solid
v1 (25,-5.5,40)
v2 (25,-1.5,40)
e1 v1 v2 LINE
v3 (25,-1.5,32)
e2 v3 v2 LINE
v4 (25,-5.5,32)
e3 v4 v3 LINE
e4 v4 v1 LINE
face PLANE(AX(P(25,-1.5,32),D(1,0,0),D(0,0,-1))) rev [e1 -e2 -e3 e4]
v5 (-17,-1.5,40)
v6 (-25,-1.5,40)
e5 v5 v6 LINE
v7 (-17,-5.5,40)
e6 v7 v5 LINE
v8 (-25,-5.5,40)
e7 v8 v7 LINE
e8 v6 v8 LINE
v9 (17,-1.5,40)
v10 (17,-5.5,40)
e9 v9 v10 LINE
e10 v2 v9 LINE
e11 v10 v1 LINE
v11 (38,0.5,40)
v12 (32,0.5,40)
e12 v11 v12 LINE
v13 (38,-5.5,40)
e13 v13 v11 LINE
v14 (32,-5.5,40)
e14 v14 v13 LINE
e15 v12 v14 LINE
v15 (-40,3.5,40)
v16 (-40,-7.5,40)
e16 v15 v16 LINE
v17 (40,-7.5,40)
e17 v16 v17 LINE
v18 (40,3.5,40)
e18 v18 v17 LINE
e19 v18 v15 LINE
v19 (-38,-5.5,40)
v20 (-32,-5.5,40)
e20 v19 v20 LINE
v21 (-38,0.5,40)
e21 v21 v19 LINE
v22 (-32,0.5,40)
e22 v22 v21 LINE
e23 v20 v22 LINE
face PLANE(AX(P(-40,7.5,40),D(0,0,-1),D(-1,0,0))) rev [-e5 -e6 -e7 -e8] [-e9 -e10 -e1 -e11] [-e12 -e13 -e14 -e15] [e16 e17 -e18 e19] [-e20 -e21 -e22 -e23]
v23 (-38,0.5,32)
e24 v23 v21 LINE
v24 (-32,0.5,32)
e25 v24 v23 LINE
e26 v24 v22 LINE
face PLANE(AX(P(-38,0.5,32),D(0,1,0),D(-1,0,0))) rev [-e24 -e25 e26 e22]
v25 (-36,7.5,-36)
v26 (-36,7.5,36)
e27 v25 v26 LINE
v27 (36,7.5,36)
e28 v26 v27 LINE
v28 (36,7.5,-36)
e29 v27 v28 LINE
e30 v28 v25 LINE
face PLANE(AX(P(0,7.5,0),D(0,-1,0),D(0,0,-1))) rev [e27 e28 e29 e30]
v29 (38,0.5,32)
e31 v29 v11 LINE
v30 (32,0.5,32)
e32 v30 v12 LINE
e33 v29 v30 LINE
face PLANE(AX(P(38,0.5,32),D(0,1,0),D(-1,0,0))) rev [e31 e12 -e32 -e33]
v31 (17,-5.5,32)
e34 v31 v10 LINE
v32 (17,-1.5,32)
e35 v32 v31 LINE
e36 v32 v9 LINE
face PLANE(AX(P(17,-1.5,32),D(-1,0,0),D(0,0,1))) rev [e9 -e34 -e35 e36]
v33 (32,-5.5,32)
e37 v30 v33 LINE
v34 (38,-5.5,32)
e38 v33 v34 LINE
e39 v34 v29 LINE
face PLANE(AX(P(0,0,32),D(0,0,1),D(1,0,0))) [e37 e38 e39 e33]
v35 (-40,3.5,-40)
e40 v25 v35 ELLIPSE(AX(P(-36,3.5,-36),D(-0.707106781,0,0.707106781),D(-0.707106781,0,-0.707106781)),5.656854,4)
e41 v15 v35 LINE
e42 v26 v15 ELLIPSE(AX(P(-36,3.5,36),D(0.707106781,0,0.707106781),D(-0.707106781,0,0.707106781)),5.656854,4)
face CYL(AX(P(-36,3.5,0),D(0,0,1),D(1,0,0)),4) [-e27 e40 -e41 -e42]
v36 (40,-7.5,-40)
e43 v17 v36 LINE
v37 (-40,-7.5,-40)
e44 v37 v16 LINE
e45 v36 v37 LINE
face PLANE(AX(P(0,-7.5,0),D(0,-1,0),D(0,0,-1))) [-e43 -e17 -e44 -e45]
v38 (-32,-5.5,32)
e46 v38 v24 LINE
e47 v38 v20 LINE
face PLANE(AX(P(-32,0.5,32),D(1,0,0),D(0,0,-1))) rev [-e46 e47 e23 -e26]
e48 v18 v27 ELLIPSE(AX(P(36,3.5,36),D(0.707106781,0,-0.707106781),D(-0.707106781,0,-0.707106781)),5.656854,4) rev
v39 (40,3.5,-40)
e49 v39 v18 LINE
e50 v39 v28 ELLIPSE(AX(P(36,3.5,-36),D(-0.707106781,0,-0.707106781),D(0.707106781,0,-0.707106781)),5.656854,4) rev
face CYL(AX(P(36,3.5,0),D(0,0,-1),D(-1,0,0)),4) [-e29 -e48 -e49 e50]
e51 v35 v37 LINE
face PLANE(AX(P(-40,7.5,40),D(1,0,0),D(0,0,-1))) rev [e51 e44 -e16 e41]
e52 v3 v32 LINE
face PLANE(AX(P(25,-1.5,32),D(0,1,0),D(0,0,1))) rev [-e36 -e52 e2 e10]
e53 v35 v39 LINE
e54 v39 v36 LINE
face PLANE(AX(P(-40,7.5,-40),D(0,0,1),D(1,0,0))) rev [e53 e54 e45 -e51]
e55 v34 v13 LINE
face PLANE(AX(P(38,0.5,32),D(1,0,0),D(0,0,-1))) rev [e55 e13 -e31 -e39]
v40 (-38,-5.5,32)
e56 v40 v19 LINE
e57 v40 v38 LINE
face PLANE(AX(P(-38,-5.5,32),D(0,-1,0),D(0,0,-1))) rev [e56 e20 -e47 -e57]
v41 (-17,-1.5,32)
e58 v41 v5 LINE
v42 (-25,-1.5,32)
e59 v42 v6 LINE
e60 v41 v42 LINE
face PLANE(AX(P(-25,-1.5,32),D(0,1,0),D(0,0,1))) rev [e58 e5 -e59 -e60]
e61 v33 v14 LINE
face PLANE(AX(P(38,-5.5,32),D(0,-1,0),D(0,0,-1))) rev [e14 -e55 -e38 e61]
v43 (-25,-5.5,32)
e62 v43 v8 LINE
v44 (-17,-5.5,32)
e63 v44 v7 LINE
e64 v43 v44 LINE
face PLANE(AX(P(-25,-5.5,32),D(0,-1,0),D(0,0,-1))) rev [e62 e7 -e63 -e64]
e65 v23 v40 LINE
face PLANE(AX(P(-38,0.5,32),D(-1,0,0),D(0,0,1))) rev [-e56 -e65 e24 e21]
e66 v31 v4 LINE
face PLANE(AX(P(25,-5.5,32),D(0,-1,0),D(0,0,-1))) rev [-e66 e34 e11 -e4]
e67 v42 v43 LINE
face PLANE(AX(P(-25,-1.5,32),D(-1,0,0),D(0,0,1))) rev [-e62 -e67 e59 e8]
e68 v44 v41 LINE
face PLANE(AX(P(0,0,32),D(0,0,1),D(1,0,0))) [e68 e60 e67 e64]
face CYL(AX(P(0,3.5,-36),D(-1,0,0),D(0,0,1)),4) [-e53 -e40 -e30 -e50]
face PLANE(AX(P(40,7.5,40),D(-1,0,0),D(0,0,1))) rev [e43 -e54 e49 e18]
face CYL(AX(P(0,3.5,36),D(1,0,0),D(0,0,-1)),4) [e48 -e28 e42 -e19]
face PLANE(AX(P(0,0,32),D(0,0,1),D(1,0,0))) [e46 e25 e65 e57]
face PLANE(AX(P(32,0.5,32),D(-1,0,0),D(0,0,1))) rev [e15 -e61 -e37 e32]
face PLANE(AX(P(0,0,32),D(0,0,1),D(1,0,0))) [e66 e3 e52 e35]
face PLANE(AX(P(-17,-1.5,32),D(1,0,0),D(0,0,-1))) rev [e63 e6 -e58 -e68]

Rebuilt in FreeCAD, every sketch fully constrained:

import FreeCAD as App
import Part
import Sketcher


def edges_at(feature, points):
    """Names of the edges that pass closest to the given points."""
    edges = feature.Shape.Edges
    near = lambda p: min(range(len(edges)), key=lambda i: edges[i].distToShape(Part.Vertex(*p))[0])
    return sorted({f"Edge{near(p) + 1}" for p in points})


def add_polygon(sketch, points):
    """Adds a closed chain of lines whose ends are joined by coincident constraints."""
    first, n = sketch.GeometryCount, len(points)
    for a, b in zip(points, points[1:] + points[:1]):
        sketch.addGeometry(Part.LineSegment(App.Vector(*a, 0), App.Vector(*b, 0)), False)
    for i in range(n):
        sketch.addConstraint(Sketcher.Constraint("Coincident", first + i, 2, first + (i + 1) % n, 1))

doc = App.newDocument("Part")
body = doc.addObject("PartDesign::Body", "Body")

sketch1 = body.newObject("Sketcher::SketchObject", "Sketch")
sketch1.AttachmentSupport = (doc.getObject("XZ_Plane"), [""])
sketch1.MapMode = "FlatFace"
add_polygon(sketch1, [(-40, -40), (-40, 40), (40, 40), (40, -40)])
sketch1.addConstraint(Sketcher.Constraint("Vertical", 0))
sketch1.addConstraint(Sketcher.Constraint("Horizontal", 1))
sketch1.addConstraint(Sketcher.Constraint("Vertical", 2))
sketch1.addConstraint(Sketcher.Constraint("Horizontal", 3))
sketch1.addConstraint(Sketcher.Constraint("Symmetric", 0, 2, 2, 2, -1, 1))
sketch1.addConstraint(Sketcher.Constraint("Equal", 3, 0))
sketch1.addConstraint(Sketcher.Constraint("DistanceX", 1, 1, 1, 2, 80.0))
pad1 = body.newObject("PartDesign::Pad", "Pad")
pad1.Profile = sketch1
pad1.Length = 15
pad1.Midplane = True
doc.recompute()

fillet = body.newObject("PartDesign::Fillet", "Fillet")
fillet.Base = (pad1, edges_at(pad1, [
    (-40, 7.5, 0),
    (0, 7.5, 40),
    (40, 7.5, 0),
    (0, 7.5, -40),
]))
fillet.Radius = 4

sketch2 = body.newObject("Sketcher::SketchObject", "Sketch001")
sketch2.AttachmentSupport = (doc.getObject("XY_Plane"), [""])
sketch2.MapMode = "FlatFace"
sketch2.AttachmentOffset = App.Placement(App.Vector(0, 0, 40), App.Rotation())
add_polygon(sketch2, [(-38, 0.5), (-38, -5.5), (-32, -5.5), (-32, 0.5)])
add_polygon(sketch2, [(-25, -1.5), (-25, -5.5), (-17, -5.5), (-17, -1.5)])
add_polygon(sketch2, [(17, -1.5), (17, -5.5), (25, -5.5), (25, -1.5)])
add_polygon(sketch2, [(32, 0.5), (32, -5.5), (38, -5.5), (38, 0.5)])
sketch2.addConstraint(Sketcher.Constraint("Vertical", 0))
sketch2.addConstraint(Sketcher.Constraint("Horizontal", 1))
sketch2.addConstraint(Sketcher.Constraint("Vertical", 2))
sketch2.addConstraint(Sketcher.Constraint("Horizontal", 3))
sketch2.addConstraint(Sketcher.Constraint("Vertical", 4))
sketch2.addConstraint(Sketcher.Constraint("Horizontal", 5))
sketch2.addConstraint(Sketcher.Constraint("Vertical", 6))
sketch2.addConstraint(Sketcher.Constraint("Horizontal", 7))
sketch2.addConstraint(Sketcher.Constraint("Vertical", 8))
sketch2.addConstraint(Sketcher.Constraint("Horizontal", 9))
sketch2.addConstraint(Sketcher.Constraint("Vertical", 10))
sketch2.addConstraint(Sketcher.Constraint("Horizontal", 11))
sketch2.addConstraint(Sketcher.Constraint("Vertical", 12))
sketch2.addConstraint(Sketcher.Constraint("Horizontal", 13))
sketch2.addConstraint(Sketcher.Constraint("Vertical", 14))
sketch2.addConstraint(Sketcher.Constraint("Horizontal", 15))
sketch2.addConstraint(Sketcher.Constraint("Symmetric", 5, 2, 8, 2, -2))
sketch2.addConstraint(Sketcher.Constraint("Symmetric", 7, 2, 10, 2, -2))
sketch2.addConstraint(Sketcher.Constraint("Symmetric", 1, 2, 12, 2, -2))
sketch2.addConstraint(Sketcher.Constraint("Symmetric", 3, 2, 14, 2, -2))
sketch2.addConstraint(Sketcher.Constraint("Horizontal", 1, 2, 4, 2))
sketch2.addConstraint(Sketcher.Constraint("Equal", 15, 0))
sketch2.addConstraint(Sketcher.Constraint("DistanceX", 1, 1, 1, 2, 6.0))
sketch2.addConstraint(Sketcher.Constraint("DistanceX", 5, 1, 5, 2, 8.0))
sketch2.addConstraint(Sketcher.Constraint("DistanceY", 4, 2, 4, 1, 4.0))
sketch2.addConstraint(Sketcher.Constraint("DistanceX", 0, 2, -1, 1, 38.0))
sketch2.addConstraint(Sketcher.Constraint("DistanceX", 4, 2, -1, 1, 25.0))
sketch2.addConstraint(Sketcher.Constraint("DistanceY", 0, 2, -1, 1, 5.5))
pocket1 = body.newObject("PartDesign::Pocket", "Pocket")
pocket1.Profile = sketch2
pocket1.Length = 8

doc.recompute()
